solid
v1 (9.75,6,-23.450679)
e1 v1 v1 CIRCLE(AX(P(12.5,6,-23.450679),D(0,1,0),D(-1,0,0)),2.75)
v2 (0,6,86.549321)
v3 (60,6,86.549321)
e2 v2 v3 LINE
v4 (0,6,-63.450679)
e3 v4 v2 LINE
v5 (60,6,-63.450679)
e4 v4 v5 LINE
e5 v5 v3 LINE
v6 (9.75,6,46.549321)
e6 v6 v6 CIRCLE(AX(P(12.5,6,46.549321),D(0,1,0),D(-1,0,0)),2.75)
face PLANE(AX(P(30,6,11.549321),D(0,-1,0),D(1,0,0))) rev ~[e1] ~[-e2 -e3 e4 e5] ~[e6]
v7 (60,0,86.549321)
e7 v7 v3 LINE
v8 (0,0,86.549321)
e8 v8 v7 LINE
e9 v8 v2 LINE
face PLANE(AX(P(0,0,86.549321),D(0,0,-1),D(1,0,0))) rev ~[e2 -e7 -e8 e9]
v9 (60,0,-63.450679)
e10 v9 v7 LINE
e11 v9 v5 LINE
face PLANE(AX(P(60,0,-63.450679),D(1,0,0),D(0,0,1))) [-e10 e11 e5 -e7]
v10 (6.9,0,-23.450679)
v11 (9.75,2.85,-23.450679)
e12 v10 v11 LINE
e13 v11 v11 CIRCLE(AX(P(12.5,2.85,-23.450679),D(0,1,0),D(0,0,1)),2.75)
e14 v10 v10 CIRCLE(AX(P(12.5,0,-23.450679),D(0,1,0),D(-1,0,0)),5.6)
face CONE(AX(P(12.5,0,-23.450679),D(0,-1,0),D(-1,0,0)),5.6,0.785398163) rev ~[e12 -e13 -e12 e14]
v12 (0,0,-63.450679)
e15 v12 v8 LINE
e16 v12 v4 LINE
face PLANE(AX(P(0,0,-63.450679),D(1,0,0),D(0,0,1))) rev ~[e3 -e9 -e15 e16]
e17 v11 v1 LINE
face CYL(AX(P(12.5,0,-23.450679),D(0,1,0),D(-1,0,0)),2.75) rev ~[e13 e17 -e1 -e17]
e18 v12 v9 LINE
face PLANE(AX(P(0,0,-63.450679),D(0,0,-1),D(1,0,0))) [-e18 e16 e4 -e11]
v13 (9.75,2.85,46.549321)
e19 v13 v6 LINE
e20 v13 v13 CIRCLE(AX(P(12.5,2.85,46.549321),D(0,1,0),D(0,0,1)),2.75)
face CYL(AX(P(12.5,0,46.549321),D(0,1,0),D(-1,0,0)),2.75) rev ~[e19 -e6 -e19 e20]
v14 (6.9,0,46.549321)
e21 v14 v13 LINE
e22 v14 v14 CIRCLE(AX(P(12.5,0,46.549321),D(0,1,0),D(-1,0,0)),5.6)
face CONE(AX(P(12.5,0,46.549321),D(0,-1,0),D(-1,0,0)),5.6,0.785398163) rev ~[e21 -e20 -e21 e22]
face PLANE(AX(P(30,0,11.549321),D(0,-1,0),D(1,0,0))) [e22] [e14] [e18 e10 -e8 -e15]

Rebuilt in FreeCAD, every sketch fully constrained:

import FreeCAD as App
import Part
import Sketcher
from FreeCAD import Vector
Q = App.Units.Quantity


def add_polygon(sketch, points):
    """Adds a closed chain of lines whose ends are joined by coincident constraints."""
    first, n = sketch.GeometryCount, len(points)
    for a, b in zip(points, points[1:] + points[:1]):
        sketch.addGeometry(Part.LineSegment(App.Vector(*a, 0), App.Vector(*b, 0)), False)
    for i in range(n):
        sketch.addConstraint(Sketcher.Constraint("Coincident", first + i, 2, first + (i + 1) % n, 1))

doc = App.newDocument("Part")
params = doc.addObject("Spreadsheet::Sheet", "Params")
for row, (alias, value) in enumerate([
    ("sketch1_width", "60 mm"),
    ("sketch1_height", "150 mm"),
    ("pad1_length", "6 mm"),
    ("sketch2_diameter", "5.5 mm"),
    ("hole_diameter", "5.5 mm"),
    ("hole_csink_diameter", "11.2 mm"),
], start=1):
    params.set(f"A{row}", alias)
    params.set(f"B{row}", "=" + value)
    params.setAlias(f"B{row}", alias)

body = doc.addObject("PartDesign::Body", "Body")

sketch1 = body.newObject("Sketcher::SketchObject", "Sketch")
sketch1.AttachmentSupport = (doc.getObject("XZ_Plane"), [""])
sketch1.MapMode = "FlatFace"
add_polygon(sketch1, [(0, 87), (0, -63), (60, -63), (60, 87)])
sketch1.addConstraint(Sketcher.Constraint("Vertical", 0))
sketch1.addConstraint(Sketcher.Constraint("Horizontal", 1))
sketch1.addConstraint(Sketcher.Constraint("Vertical", 2))
sketch1.addConstraint(Sketcher.Constraint("Horizontal", 3))
sketch1.addConstraint(Sketcher.Constraint("PointOnObject", 0, 2, -2))
sketch1.addConstraint(Sketcher.Constraint("DistanceX", 1, 1, 1, 2, Q("60 mm")))
sketch1.addConstraint(Sketcher.Constraint("DistanceY", 0, 2, 0, 1, Q("150 mm")))
sketch1.addConstraint(Sketcher.Constraint("DistanceY", 0, 2, -1, 1, Q("63.450679 mm")))
sketch1.setExpression("Constraints[9]", "Params.sketch1_width")
sketch1.setExpression("Constraints[10]", "Params.sketch1_height")
pad1 = body.newObject("PartDesign::Pad", "Pad")
pad1.Profile = sketch1
pad1.setExpression("Length", "Params.pad1_length")
pad1.Reversed = True

sketch2 = body.newObject("Sketcher::SketchObject", "Sketch001")
sketch2.AttachmentSupport = (doc.getObject("XZ_Plane"), [""])
sketch2.MapMode = "FlatFace"
sketch2.addGeometry(Part.Circle(Vector(12.5, 46.5, 0), Vector(0, 0, 1), 2.8), False)
sketch2.addGeometry(Part.Circle(Vector(12.5, -23.5, 0), Vector(0, 0, 1), 2.8), False)
sketch2.addConstraint(Sketcher.Constraint("Equal", 0, 1))
sketch2.addConstraint(Sketcher.Constraint("Vertical", 0, 3, 1, 3))
sketch2.addConstraint(Sketcher.Constraint("Diameter", 0, Q("5.5 mm")))
sketch2.addConstraint(Sketcher.Constraint("DistanceY", 1, 3, 0, 3, Q("70 mm")))
sketch2.addConstraint(Sketcher.Constraint("DistanceX", -1, 1, 0, 3, Q("12.5 mm")))
sketch2.addConstraint(Sketcher.Constraint("DistanceY", -1, 1, 0, 3, Q("46.549321 mm")))
sketch2.setExpression("Constraints[2]", "Params.sketch2_diameter")
doc.recompute()
hole = body.newObject("PartDesign::Hole", "Hole")
hole.Profile = sketch2
hole.ThreadType = "None"
hole.setExpression("Diameter", "Params.hole_diameter")
hole.DepthType = "ThroughAll"
hole.HoleCutType = "Countersink"
hole.setExpression("HoleCutDiameter", "Params.hole_csink_diameter")
hole.HoleCutCountersinkAngle = 90

doc.recompute()
